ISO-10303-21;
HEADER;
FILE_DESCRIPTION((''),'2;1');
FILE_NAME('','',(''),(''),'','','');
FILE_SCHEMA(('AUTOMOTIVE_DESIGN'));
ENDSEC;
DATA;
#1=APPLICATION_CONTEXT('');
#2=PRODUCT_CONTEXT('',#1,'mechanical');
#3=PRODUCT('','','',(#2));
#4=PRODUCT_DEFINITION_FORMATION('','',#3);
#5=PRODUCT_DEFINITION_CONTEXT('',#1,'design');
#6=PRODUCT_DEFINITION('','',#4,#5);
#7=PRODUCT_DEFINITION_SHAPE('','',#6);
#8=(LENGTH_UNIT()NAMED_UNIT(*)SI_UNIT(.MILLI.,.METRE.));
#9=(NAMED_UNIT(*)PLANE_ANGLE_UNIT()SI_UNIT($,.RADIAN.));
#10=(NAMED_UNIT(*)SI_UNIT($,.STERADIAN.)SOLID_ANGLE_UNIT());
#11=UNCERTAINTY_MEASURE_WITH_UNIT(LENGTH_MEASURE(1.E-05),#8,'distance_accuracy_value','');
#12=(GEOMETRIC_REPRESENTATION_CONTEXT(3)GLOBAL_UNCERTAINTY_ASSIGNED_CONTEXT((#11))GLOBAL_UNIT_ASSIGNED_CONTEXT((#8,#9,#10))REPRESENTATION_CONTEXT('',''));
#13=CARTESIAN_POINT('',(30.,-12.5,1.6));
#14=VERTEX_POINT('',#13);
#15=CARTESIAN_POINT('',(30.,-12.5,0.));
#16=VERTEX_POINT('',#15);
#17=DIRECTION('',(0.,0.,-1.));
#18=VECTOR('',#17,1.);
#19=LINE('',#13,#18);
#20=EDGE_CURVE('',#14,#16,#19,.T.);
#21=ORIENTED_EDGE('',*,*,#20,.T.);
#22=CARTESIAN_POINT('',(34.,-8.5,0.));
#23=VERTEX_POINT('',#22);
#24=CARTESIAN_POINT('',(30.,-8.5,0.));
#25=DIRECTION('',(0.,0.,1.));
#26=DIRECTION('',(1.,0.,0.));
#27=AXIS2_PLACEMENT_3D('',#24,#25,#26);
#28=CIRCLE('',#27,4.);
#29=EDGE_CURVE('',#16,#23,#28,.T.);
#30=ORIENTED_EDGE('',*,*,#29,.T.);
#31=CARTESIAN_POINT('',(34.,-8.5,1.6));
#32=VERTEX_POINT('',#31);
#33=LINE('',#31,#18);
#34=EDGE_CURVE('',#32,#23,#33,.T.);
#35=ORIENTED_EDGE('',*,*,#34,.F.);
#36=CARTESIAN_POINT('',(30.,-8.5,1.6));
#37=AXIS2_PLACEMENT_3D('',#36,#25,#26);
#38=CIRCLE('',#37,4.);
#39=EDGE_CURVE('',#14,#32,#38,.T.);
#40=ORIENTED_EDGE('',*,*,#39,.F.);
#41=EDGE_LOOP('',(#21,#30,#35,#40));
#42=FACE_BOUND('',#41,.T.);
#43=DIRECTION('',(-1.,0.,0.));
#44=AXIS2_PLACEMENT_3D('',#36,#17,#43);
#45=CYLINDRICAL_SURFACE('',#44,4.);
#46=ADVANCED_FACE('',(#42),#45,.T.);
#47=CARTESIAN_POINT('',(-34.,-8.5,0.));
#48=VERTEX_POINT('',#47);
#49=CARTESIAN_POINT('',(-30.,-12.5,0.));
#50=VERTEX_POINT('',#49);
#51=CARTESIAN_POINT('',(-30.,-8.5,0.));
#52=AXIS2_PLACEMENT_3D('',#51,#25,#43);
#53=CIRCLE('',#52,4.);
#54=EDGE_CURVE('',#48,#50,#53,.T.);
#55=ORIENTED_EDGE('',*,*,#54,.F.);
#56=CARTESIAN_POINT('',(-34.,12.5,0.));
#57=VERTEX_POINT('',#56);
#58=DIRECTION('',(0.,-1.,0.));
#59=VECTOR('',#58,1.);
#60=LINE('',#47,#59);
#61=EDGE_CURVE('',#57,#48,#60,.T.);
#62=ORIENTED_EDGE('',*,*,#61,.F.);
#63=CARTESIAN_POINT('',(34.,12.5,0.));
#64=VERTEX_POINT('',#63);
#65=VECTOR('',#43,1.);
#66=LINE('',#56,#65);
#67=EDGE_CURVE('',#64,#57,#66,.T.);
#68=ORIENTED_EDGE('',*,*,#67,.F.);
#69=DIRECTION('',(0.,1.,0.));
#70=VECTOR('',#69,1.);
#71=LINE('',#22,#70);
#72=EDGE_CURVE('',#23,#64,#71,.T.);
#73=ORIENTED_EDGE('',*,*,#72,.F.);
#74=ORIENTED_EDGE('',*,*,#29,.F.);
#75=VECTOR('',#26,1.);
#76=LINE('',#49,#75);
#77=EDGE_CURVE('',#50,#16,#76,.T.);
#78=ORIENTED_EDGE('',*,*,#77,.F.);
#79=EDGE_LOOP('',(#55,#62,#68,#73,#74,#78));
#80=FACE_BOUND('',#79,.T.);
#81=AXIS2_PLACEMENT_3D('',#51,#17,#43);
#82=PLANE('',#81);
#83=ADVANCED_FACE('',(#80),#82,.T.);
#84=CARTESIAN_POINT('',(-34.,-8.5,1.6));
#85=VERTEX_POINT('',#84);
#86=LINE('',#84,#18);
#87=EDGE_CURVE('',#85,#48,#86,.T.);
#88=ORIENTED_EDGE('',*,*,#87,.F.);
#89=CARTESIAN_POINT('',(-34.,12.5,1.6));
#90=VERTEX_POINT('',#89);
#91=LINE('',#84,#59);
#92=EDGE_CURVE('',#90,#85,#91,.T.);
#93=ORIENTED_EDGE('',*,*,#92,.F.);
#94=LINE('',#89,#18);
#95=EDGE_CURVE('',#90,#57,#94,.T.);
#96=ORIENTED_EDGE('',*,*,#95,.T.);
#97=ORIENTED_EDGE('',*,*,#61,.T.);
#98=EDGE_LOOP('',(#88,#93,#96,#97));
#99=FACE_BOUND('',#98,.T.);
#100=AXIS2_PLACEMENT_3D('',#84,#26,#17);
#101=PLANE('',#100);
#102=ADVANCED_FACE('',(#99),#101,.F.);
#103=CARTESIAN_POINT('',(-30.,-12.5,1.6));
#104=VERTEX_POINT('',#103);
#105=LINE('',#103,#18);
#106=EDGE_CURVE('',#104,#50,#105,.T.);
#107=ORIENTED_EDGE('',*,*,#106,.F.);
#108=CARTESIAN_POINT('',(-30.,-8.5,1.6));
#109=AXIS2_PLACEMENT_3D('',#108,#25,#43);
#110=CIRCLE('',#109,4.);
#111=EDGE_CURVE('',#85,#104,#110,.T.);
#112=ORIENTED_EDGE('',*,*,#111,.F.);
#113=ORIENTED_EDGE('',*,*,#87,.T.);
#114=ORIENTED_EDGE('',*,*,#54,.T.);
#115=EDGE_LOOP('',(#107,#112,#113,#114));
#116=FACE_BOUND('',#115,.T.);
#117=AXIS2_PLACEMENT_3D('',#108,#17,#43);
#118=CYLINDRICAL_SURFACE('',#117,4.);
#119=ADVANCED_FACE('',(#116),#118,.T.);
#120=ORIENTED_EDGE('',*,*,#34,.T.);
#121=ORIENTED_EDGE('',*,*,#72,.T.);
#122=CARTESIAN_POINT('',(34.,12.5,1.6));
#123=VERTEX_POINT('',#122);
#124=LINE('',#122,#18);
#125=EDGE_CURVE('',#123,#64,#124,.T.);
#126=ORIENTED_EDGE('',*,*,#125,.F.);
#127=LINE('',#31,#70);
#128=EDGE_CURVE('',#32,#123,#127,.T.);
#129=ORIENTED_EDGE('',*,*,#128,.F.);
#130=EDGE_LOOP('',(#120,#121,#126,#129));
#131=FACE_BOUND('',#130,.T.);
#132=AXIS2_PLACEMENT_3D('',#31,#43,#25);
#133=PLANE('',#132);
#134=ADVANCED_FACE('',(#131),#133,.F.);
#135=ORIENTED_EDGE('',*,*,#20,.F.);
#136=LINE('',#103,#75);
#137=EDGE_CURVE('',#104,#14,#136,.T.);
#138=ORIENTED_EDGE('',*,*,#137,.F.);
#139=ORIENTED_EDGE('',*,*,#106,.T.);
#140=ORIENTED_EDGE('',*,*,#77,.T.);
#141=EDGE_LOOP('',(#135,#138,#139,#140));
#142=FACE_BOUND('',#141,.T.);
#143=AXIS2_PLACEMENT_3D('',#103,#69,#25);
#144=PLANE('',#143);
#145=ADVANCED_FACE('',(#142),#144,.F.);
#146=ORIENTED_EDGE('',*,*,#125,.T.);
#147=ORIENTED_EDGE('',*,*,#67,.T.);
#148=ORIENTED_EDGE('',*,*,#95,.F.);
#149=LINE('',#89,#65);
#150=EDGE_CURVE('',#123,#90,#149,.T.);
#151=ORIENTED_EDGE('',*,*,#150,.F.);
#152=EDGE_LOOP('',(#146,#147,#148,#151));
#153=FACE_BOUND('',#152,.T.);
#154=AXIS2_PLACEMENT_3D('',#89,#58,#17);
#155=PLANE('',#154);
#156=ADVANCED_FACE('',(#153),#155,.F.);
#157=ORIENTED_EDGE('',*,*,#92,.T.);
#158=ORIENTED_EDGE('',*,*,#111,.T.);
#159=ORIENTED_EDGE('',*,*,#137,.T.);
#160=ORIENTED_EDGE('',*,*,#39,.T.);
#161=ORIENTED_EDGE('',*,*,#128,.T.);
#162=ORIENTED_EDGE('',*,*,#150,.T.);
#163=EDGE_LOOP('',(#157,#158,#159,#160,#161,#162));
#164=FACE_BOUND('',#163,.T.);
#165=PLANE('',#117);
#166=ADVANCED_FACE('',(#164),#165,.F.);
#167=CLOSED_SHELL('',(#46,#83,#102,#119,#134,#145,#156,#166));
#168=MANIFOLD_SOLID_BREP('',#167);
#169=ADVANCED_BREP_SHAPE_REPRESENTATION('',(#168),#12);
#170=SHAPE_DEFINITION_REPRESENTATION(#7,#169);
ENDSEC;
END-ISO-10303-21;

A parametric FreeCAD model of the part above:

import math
import FreeCAD as App
import Part
import Sketcher
from FreeCAD import Vector

doc = App.newDocument("Part")
body = doc.addObject("PartDesign::Body", "Body")

# Sketch on XY plane
sketch1 = body.newObject("Sketcher::SketchObject", "Sketch")
sketch1.AttachmentSupport = (doc.getObject("XY_Plane"), [""])
sketch1.MapMode = "FlatFace"
sketch1.addGeometry(Part.LineSegment(Vector(-30, -12.5, 0), Vector(30, -12.5, 0)), False)
sketch1.addGeometry(Part.ArcOfCircle(Part.Circle(Vector(30, -8.5, 0), Vector(0, 0, 1), 4), math.radians(-90), math.radians(0)), False)
sketch1.addGeometry(Part.LineSegment(Vector(34, -8.5, 0), Vector(34, 12.5, 0)), False)
sketch1.addGeometry(Part.LineSegment(Vector(34, 12.5, 0), Vector(-34, 12.5, 0)), False)
sketch1.addGeometry(Part.LineSegment(Vector(-34, 12.5, 0), Vector(-34, -8.5, 0)), False)
sketch1.addGeometry(Part.ArcOfCircle(Part.Circle(Vector(-30, -8.5, 0), Vector(0, 0, 1), 4), math.radians(180), math.radians(270)), False)
sketch1.addConstraint(Sketcher.Constraint("Tangent", 0, 2, 1, 1))
sketch1.addConstraint(Sketcher.Constraint("Tangent", 1, 2, 2, 1))
sketch1.addConstraint(Sketcher.Constraint("Coincident", 2, 2, 3, 1))
sketch1.addConstraint(Sketcher.Constraint("Coincident", 3, 2, 4, 1))
sketch1.addConstraint(Sketcher.Constraint("Tangent", 4, 2, 5, 1))
sketch1.addConstraint(Sketcher.Constraint("Tangent", 5, 2, 0, 1))
sketch1.addConstraint(Sketcher.Constraint("Horizontal", 0))
sketch1.addConstraint(Sketcher.Constraint("Vertical", 2))
sketch1.addConstraint(Sketcher.Constraint("Horizontal", 3))
sketch1.addConstraint(Sketcher.Constraint("Vertical", 4))
sketch1.addConstraint(Sketcher.Constraint("Equal", 1, 5))
sketch1.addConstraint(Sketcher.Constraint("Radius", 1, 4.0))
sketch1.addConstraint(Sketcher.Constraint("DistanceX", 0, 1, 0, 2, 60.0))
sketch1.addConstraint(Sketcher.Constraint("DistanceY", 2, 1, 2, 2, 21.0))
sketch1.addConstraint(Sketcher.Constraint("DistanceX", -1, 1, 1, 3, 30.0))
sketch1.addConstraint(Sketcher.Constraint("DistanceY", 1, 3, -1, 1, 8.5))
pad1 = body.newObject("PartDesign::Pad", "Pad")
pad1.Profile = sketch1
pad1.Length = 1.6

doc.recompute()
